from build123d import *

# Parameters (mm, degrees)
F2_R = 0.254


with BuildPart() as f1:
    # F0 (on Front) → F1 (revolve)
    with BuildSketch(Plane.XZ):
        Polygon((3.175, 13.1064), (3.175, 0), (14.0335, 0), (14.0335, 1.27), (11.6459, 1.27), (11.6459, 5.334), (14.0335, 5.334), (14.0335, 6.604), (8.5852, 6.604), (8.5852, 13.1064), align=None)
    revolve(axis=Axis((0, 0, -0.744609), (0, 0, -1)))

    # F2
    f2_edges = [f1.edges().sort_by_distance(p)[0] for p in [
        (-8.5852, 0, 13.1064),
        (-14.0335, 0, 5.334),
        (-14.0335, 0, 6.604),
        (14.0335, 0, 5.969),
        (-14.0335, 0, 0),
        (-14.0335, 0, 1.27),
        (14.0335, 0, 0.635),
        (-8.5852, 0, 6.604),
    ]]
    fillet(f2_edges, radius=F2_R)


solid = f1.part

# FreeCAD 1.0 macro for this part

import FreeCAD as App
import Part
import Sketcher
from FreeCAD import Vector
Q = App.Units.Quantity


def edges_at(feature, points):
    """Names of the edges that pass closest to the given points."""
    edges = feature.Shape.Edges
    near = lambda p: min(range(len(edges)), key=lambda i: edges[i].distToShape(Part.Vertex(*p))[0])
    return sorted({f"Edge{near(p) + 1}" for p in points})

doc = App.newDocument("Part")
body = doc.addObject("PartDesign::Body", "Body")

# Sketch on XZ plane
sketch1 = body.newObject("Sketcher::SketchObject", "Sketch")
sketch1.AttachmentSupport = (doc.getObject("XZ_Plane"), [""])
sketch1.MapMode = "FlatFace"
sketch1.addGeometry(Part.LineSegment(Vector(3.2, 13.1, 0), Vector(3.2, 0, 0)), False)
sketch1.addGeometry(Part.LineSegment(Vector(3.2, 0, 0), Vector(14, 0, 0)), False)
sketch1.addGeometry(Part.LineSegment(Vector(14, 0, 0), Vector(14, 1.3, 0)), False)
sketch1.addGeometry(Part.LineSegment(Vector(14, 1.3, 0), Vector(11.6, 1.3, 0)), False)
sketch1.addGeometry(Part.LineSegment(Vector(11.6, 1.3, 0), Vector(11.6, 5.3, 0)), False)
sketch1.addGeometry(Part.LineSegment(Vector(11.6, 5.3, 0), Vector(14, 5.3, 0)), False)
sketch1.addGeometry(Part.LineSegment(Vector(14, 5.3, 0), Vector(14, 6.6, 0)), False)
sketch1.addGeometry(Part.LineSegment(Vector(14, 6.6, 0), Vector(8.6, 6.6, 0)), False)
sketch1.addGeometry(Part.LineSegment(Vector(8.6, 6.6, 0), Vector(8.6, 13.1, 0)), False)
sketch1.addGeometry(Part.LineSegment(Vector(8.6, 13.1, 0), Vector(3.2, 13.1, 0)), False)
sketch1.addConstraint(Sketcher.Constraint("Coincident", 0, 2, 1, 1))
sketch1.addConstraint(Sketcher.Constraint("Coincident", 1, 2, 2, 1))
sketch1.addConstraint(Sketcher.Constraint("Coincident", 2, 2, 3, 1))
sketch1.addConstraint(Sketcher.Constraint("Coincident", 3, 2, 4, 1))
sketch1.addConstraint(Sketcher.Constraint("Coincident", 4, 2, 5, 1))
sketch1.addConstraint(Sketcher.Constraint("Coincident", 5, 2, 6, 1))
sketch1.addConstraint(Sketcher.Constraint("Coincident", 6, 2, 7, 1))
sketch1.addConstraint(Sketcher.Constraint("Coincident", 7, 2, 8, 1))
sketch1.addConstraint(Sketcher.Constraint("Coincident", 8, 2, 9, 1))
sketch1.addConstraint(Sketcher.Constraint("Coincident", 9, 2, 0, 1))
sketch1.addConstraint(Sketcher.Constraint("Vertical", 0))
sketch1.addConstraint(Sketcher.Constraint("Horizontal", 1))
sketch1.addConstraint(Sketcher.Constraint("Vertical", 2))
sketch1.addConstraint(Sketcher.Constraint("Horizontal", 3))
sketch1.addConstraint(Sketcher.Constraint("Vertical", 4))
sketch1.addConstraint(Sketcher.Constraint("Horizontal", 5))
sketch1.addConstraint(Sketcher.Constraint("Vertical", 6))
sketch1.addConstraint(Sketcher.Constraint("Horizontal", 7))
sketch1.addConstraint(Sketcher.Constraint("Vertical", 8))
sketch1.addConstraint(Sketcher.Constraint("Horizontal", 9))
sketch1.addConstraint(Sketcher.Constraint("PointOnObject", 0, 2, -1))
sketch1.addConstraint(Sketcher.Constraint("Vertical", 2, 2, 5, 2))
sketch1.addConstraint(Sketcher.Constraint("Equal", 2, 6))
sketch1.addConstraint(Sketcher.Constraint("DistanceY", 2, 1, 2, 2, Q("0.05 in")))
sketch1.addConstraint(Sketcher.Constraint("DistanceY", 4, 1, 4, 2, Q("0.16 in")))
sketch1.addConstraint(Sketcher.Constraint("DistanceX", 3, 2, 3, 1, Q("0.094 in")))
sketch1.addConstraint(Sketcher.Constraint("DistanceX", 9, 2, 9, 1, Q("0.213 in")))
sketch1.addConstraint(Sketcher.Constraint("DistanceY", 0, 2, 0, 1, Q("0.516 in")))
sketch1.addConstraint(Sketcher.Constraint("DistanceX", 1, 1, 1, 2, Q("0.4275 in")))
sketch1.addConstraint(Sketcher.Constraint("DistanceX", -1, 1, 0, 2, Q("0.125 in")))
revolution = body.newObject("PartDesign::Revolution", "Revolution")
revolution.Profile = sketch1
revolution.ReferenceAxis = (sketch1, ["V_Axis"])
revolution.Angle = 360
doc.recompute()

fillet = body.newObject("PartDesign::Fillet", "Fillet")
fillet.Base = (revolution, edges_at(revolution, [
    (-8.585, 0, 13.106),
    (-14.034, 0, 5.334),
    (-14.034, 0, 6.604),
    (14.034, 0, 5.969),
    (-14.034, 0, 0),
    (-14.034, 0, 1.27),
    (14.034, 0, 0.635),
    (-8.585, 0, 6.604),
]))
fillet.Radius = Q("0.01 in")

doc.recompute()
